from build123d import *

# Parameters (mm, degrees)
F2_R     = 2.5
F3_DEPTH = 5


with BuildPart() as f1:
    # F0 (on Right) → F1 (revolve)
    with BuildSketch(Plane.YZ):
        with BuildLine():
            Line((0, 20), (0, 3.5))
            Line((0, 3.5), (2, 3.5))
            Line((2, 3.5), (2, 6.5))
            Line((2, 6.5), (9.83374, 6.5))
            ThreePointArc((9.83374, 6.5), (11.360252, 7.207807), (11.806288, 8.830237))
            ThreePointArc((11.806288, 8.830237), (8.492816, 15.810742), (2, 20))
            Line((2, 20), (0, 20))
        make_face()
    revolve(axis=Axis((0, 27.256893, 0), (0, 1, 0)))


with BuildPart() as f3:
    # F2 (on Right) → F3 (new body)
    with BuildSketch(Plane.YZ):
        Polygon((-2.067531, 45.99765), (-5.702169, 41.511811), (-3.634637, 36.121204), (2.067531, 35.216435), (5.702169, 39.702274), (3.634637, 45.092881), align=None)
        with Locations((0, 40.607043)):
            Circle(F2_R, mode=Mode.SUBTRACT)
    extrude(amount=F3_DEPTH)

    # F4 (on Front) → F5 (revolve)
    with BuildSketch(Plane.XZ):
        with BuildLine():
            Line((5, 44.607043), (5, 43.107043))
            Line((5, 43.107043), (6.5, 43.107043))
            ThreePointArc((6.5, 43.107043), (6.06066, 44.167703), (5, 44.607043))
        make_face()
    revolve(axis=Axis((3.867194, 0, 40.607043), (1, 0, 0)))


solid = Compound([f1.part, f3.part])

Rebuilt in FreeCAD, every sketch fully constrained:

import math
import FreeCAD as App
import Part
import Sketcher

V = App.Vector


def add_polygon(sketch, points):
    """Adds a closed chain of lines whose ends are joined by coincident constraints."""
    first, n = sketch.GeometryCount, len(points)
    for a, b in zip(points, points[1:] + points[:1]):
        sketch.addGeometry(Part.LineSegment(App.Vector(*a, 0), App.Vector(*b, 0)), False)
    for i in range(n):
        sketch.addConstraint(Sketcher.Constraint("Coincident", first + i, 2, first + (i + 1) % n, 1))

doc = App.newDocument("Part")
body = doc.addObject("PartDesign::Body", "Body")

# Sketch on YZ plane
sketch1 = body.newObject("Sketcher::SketchObject", "Sketch")
sketch1.AttachmentSupport = (doc.getObject("YZ_Plane"), [""])
sketch1.MapMode = "FlatFace"
sketch1.addGeometry([
    Part.LineSegment(V(0, 20, 0), V(0, 3.5, 0)),  # 0
    Part.LineSegment(V(0, 3.5, 0), V(2, 3.5, 0)),  # 1
    Part.LineSegment(V(2, 3.5, 0), V(2, 6.5, 0)),  # 2
    Part.LineSegment(V(2, 6.5, 0), V(9.83374, 6.5, 0)),  # 3
    Part.ArcOfCircle(Part.Circle(V(9.833741, 8.5, 0), V(0, 0, 1), 2), math.radians(-90.000015), math.radians(9.504119)),  # 4
    Part.ArcOfCircle(Part.Circle(V(-2.112503, 6.499997, 0), V(0, 0, 1), 14.112503), math.radians(9.504136), math.radians(73.057704)),  # 5
    Part.LineSegment(V(2, 20, 0), V(0, 20, 0)),  # 6
], False)
sketch1.addConstraint([
    Sketcher.Constraint("Coincident", 0, 2, 1, 1),
    Sketcher.Constraint("Coincident", 1, 2, 2, 1),
    Sketcher.Constraint("Coincident", 2, 2, 3, 1),
    Sketcher.Constraint("Tangent", 3, 2, 4, 1),
    Sketcher.Constraint("Tangent", 4, 2, 5, 1),
    Sketcher.Constraint("Coincident", 5, 2, 6, 1),
    Sketcher.Constraint("Coincident", 6, 2, 0, 1),
    Sketcher.Constraint("Vertical", 0),
    Sketcher.Constraint("Horizontal", 1),
    Sketcher.Constraint("Vertical", 2),
    Sketcher.Constraint("Horizontal", 3),
    Sketcher.Constraint("Horizontal", 6),
    Sketcher.Constraint("PointOnObject", 0, 2, -2),
    Sketcher.Constraint("Vertical", 2, 2, 5, 2),
    Sketcher.Constraint("Radius", 4, 2.0),
    Sketcher.Constraint("DistanceX", 1, 1, 1, 2, 2.0),
    Sketcher.Constraint("DistanceY", 2, 1, 2, 2, 3.0),
    Sketcher.Constraint("DistanceY", 0, 2, 0, 1, 16.5),
    Sketcher.Constraint("DistanceY", -1, 1, 5, 2, 20.0),
    Sketcher.Constraint("Radius", 5, 14.112503),
    Sketcher.Constraint("DistanceX", 3, 1, 3, 2, 7.83374),
])
revolution = body.newObject("PartDesign::Revolution", "Revolution")
revolution.Profile = sketch1
revolution.ReferenceAxis = (sketch1, ["H_Axis"])
revolution.Angle = 360
body2 = doc.addObject("PartDesign::Body", "Body001")

# Sketch on YZ plane
sketch2 = body2.newObject("Sketcher::SketchObject", "Sketch001")
sketch2.AttachmentSupport = (doc.getObject("YZ_Plane001"), [""])
sketch2.MapMode = "FlatFace"
add_polygon(sketch2, [(-2.067531, 45.99765), (-5.702169, 41.511811), (-3.634637, 36.121204), (2.067531, 35.216435), (5.702169, 39.702274), (3.634637, 45.092881)])  # lines 0-5
sketch2.addGeometry(Part.Circle(V(0, 40.607043, 0), V(0, 0, 1), 2.5), False)  # 6
sketch2.addConstraint([
    Sketcher.Constraint("PointOnObject", 6, 3, -2),
    Sketcher.Constraint("Parallel", 0, 3),
    Sketcher.Constraint("Parallel", 1, 4),
    Sketcher.Constraint("Parallel", 2, 5),
    Sketcher.Constraint("Equal", 0, 1),
    Sketcher.Constraint("Equal", 1, 2),
    Sketcher.Constraint("Equal", 2, 3),
    Sketcher.Constraint("Diameter", 6, 5.0),
    Sketcher.Constraint("DistanceX", 0, 2, 2, 2, 7.7697),
    Sketcher.Constraint("DistanceX", 0, 2, -1, 1, 5.702169),
    Sketcher.Constraint("DistanceY", -1, 1, 0, 2, 41.511811),
    Sketcher.Constraint("DistanceX", -1, 1, 3, 2, 5.702169),
    Sketcher.Constraint("DistanceY", -1, 1, 4, 2, 45.092881),
    Sketcher.Constraint("DistanceY", -1, 1, 5, 2, 45.99765),
    Sketcher.Constraint("DistanceY", 6, 3, 0, 2, 0.904768),
])
pad1 = body2.newObject("PartDesign::Pad", "Pad")
pad1.Profile = sketch2
pad1.Length = 5

# Sketch on XZ plane
sketch3 = body2.newObject("Sketcher::SketchObject", "Sketch002")
sketch3.AttachmentSupport = (doc.getObject("XZ_Plane001"), [""])
sketch3.MapMode = "FlatFace"
sketch3.addGeometry([
    Part.LineSegment(V(5, 44.607043, 0), V(5, 43.107043, 0)),
    Part.LineSegment(V(5, 43.107043, 0), V(6.5, 43.107043, 0)),
    Part.ArcOfCircle(Part.Circle(V(4.999999, 43.107042, 0), V(0, 0, 1), 1.500001), math.radians(0.000022), math.radians(89.999978)),
], False)
sketch3.addGeometry(Part.LineSegment(V(4.999999, 40.607043, 0), V(6.5, 40.607043, 0)), True)  # axis
sketch3.addConstraint([
    Sketcher.Constraint("Coincident", 0, 2, 1, 1),
    Sketcher.Constraint("Coincident", 1, 2, 2, 1),
    Sketcher.Constraint("Coincident", 2, 2, 0, 1),
    Sketcher.Constraint("Vertical", 0),
    Sketcher.Constraint("Horizontal", 1),
    Sketcher.Constraint("Horizontal", 3),
    Sketcher.Constraint("Coincident", 0, 2, 2, 3),
    Sketcher.Constraint("Vertical", 2, 2, 3, 1),
    Sketcher.Constraint("Vertical", 1, 2, 3, 2),
    Sketcher.Constraint("Radius", 2, 1.500001),
    Sketcher.Constraint("DistanceX", -1, 1, 2, 3, 4.999999),
    Sketcher.Constraint("DistanceY", 3, 1, 2, 2, 4.0),
    Sketcher.Constraint("DistanceY", -1, 1, 2, 3, 43.107042),
])
revolution2 = body2.newObject("PartDesign::Revolution", "Revolution001")
revolution2.Profile = sketch3
revolution2.ReferenceAxis = (sketch3, ["Axis0"])
revolution2.Angle = 360

doc.recompute()
